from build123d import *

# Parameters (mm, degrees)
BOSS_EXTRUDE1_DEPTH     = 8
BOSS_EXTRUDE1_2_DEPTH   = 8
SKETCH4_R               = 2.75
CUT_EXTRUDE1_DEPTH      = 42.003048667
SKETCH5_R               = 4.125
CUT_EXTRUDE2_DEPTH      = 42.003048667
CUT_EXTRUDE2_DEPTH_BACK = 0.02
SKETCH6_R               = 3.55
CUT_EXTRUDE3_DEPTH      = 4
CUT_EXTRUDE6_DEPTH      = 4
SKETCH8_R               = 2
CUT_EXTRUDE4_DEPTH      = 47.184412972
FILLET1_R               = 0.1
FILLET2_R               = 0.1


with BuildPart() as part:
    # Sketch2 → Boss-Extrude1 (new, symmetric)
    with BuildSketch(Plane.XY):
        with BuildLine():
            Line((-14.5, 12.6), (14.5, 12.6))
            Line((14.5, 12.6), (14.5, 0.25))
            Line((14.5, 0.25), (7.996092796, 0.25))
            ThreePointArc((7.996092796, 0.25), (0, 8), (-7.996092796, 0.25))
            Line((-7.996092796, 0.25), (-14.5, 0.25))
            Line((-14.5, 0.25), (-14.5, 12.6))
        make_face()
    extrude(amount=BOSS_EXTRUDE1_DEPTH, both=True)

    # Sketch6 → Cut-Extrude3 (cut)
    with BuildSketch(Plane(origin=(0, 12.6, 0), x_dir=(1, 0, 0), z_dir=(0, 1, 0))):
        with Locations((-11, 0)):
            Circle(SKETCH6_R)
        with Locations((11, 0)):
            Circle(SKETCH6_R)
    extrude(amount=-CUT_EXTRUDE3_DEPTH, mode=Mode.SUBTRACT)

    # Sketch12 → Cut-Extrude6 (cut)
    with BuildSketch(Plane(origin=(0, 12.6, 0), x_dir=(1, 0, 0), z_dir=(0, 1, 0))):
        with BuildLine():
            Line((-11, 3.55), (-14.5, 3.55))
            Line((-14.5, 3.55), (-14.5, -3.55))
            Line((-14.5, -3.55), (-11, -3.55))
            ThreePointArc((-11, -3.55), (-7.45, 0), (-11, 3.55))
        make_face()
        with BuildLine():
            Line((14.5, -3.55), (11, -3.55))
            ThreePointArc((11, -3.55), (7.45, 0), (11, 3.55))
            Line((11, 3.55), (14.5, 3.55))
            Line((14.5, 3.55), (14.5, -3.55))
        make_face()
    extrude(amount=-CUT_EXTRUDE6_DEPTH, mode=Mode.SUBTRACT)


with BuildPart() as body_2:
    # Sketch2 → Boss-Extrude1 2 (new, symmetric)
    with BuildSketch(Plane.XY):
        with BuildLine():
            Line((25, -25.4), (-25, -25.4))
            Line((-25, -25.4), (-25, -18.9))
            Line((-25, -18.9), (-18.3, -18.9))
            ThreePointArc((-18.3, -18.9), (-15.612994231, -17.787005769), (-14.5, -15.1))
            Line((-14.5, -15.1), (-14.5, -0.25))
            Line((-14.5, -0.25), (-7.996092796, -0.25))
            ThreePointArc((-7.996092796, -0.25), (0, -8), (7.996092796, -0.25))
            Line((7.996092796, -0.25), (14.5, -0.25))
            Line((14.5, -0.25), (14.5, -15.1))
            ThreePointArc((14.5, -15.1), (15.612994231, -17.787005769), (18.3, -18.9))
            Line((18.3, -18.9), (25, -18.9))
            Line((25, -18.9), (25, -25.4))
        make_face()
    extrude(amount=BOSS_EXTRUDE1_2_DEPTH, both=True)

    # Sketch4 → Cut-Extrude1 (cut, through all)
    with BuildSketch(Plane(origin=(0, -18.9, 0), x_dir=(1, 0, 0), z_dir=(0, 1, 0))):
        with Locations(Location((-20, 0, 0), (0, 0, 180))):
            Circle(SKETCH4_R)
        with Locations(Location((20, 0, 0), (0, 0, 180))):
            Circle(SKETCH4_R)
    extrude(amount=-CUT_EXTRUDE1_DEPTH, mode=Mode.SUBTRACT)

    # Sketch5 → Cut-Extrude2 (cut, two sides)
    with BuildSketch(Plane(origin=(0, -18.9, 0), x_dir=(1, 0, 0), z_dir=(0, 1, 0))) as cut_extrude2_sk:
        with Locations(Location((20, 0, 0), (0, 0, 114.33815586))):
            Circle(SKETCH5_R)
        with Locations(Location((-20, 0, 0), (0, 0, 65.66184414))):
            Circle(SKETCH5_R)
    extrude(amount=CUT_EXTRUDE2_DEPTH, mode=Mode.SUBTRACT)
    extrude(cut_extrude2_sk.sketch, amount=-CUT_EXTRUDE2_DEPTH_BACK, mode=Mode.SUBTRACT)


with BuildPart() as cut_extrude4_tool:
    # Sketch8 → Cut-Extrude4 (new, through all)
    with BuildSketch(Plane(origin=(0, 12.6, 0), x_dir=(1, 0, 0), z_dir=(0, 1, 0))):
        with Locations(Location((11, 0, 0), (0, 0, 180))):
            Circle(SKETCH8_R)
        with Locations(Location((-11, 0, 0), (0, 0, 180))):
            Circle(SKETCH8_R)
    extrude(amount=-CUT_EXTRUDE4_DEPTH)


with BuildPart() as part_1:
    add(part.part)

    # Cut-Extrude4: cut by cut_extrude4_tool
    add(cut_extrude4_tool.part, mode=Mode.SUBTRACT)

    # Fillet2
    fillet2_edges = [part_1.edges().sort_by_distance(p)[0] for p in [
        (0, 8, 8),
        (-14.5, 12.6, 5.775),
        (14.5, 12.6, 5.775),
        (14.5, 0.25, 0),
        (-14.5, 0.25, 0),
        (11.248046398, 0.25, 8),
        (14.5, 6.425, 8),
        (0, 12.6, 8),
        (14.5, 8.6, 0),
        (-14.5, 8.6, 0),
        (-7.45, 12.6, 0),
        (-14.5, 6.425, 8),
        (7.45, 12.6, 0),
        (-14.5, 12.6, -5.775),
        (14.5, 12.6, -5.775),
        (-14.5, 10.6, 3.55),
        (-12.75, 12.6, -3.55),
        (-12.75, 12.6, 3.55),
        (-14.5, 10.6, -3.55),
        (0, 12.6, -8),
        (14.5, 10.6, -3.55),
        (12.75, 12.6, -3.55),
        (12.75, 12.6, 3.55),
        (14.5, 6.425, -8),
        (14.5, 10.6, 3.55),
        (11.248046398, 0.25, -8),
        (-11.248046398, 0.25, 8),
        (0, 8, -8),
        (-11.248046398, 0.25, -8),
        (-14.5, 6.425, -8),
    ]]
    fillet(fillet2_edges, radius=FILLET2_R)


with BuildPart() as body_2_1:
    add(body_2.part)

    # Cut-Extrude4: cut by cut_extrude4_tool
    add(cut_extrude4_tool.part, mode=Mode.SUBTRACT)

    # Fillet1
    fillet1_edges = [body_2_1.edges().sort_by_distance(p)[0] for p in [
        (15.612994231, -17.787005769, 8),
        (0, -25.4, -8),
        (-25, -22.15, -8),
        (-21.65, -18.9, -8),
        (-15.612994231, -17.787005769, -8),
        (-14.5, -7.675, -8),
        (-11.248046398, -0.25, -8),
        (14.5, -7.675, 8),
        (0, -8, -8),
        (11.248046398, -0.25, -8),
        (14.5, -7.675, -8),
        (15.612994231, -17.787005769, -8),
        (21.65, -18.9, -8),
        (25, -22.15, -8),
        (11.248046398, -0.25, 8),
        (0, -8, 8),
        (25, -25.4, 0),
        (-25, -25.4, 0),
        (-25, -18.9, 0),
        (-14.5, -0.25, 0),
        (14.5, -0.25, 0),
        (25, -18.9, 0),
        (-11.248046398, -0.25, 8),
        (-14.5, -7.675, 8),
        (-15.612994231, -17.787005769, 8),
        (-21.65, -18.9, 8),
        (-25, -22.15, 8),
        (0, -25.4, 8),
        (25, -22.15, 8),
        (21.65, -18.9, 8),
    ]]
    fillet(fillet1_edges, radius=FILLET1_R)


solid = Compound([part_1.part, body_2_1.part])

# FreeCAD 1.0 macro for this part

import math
import FreeCAD as App
import Part
import Sketcher
Q = App.Units.Quantity


def edges_at(feature, points):
    """Names of the edges that pass closest to the given points."""
    edges = feature.Shape.Edges
    near = lambda p: min(range(len(edges)), key=lambda i: edges[i].distToShape(Part.Vertex(*p))[0])
    return sorted({f"Edge{near(p) + 1}" for p in points})

doc = App.newDocument("Part")
body = doc.addObject("PartDesign::Body", "Body")

sketch1 = body.newObject("Sketcher::SketchObject", "Sketch")
sketch1.AttachmentSupport = (doc.getObject("XY_Plane"), [""])
sketch1.MapMode = "FlatFace"
sketch1.addGeometry(Part.LineSegment(App.Vector(14, 13, 0), App.Vector(-14, 13, 0)), False)
sketch1.addGeometry(Part.LineSegment(App.Vector(-14, 13, 0), App.Vector(-14, 0, 0)), False)
sketch1.addGeometry(Part.LineSegment(App.Vector(-14, 0, 0), App.Vector(-8, 0, 0)), False)
sketch1.addGeometry(Part.ArcOfCircle(Part.Circle(App.Vector(0, 0, 0), App.Vector(0, 0, 1), 8), math.radians(2), math.radians(178)), False)
sketch1.addGeometry(Part.LineSegment(App.Vector(8, 0, 0), App.Vector(14, 0, 0)), False)
sketch1.addGeometry(Part.LineSegment(App.Vector(14, 0, 0), App.Vector(14, 13, 0)), False)
sketch1.addConstraint(Sketcher.Constraint("Coincident", 0, 2, 1, 1))
sketch1.addConstraint(Sketcher.Constraint("Coincident", 1, 2, 2, 1))
sketch1.addConstraint(Sketcher.Constraint("Coincident", 2, 2, 3, 2))
sketch1.addConstraint(Sketcher.Constraint("Coincident", 3, 1, 4, 1))
sketch1.addConstraint(Sketcher.Constraint("Coincident", 4, 2, 5, 1))
sketch1.addConstraint(Sketcher.Constraint("Coincident", 5, 2, 0, 1))
sketch1.addConstraint(Sketcher.Constraint("Horizontal", 0))
sketch1.addConstraint(Sketcher.Constraint("Vertical", 1))
sketch1.addConstraint(Sketcher.Constraint("Horizontal", 2))
sketch1.addConstraint(Sketcher.Constraint("Horizontal", 4))
sketch1.addConstraint(Sketcher.Constraint("Vertical", 5))
sketch1.addConstraint(Sketcher.Constraint("Coincident", 3, 3, -1, 1))
sketch1.addConstraint(Sketcher.Constraint("Symmetric", 1, 2, 4, 2, -2))
sketch1.addConstraint(Sketcher.Constraint("Radius", 3, Q("8 mm")))
sketch1.addConstraint(Sketcher.Constraint("DistanceX", 0, 2, 0, 1, Q("29 mm")))
sketch1.addConstraint(Sketcher.Constraint("DistanceY", 1, 2, 1, 1, Q("12.35 mm")))
sketch1.addConstraint(Sketcher.Constraint("DistanceY", -1, 1, 0, 2, Q("12.6 mm")))
pad1 = body.newObject("PartDesign::Pad", "Pad")
pad1.Profile = sketch1
pad1.Length = 16
pad1.Midplane = True

sketch2 = body.newObject("Sketcher::SketchObject", "Sketch001")
sketch2.AttachmentSupport = (doc.getObject("XZ_Plane"), [""])
sketch2.MapMode = "FlatFace"
sketch2.AttachmentOffset = App.Placement(App.Vector(0, 0, -12.6), App.Rotation())
sketch2.addGeometry(Part.Circle(App.Vector(-11, 0, 0), App.Vector(0, 0, 1), 3.5), False)
sketch2.addGeometry(Part.Circle(App.Vector(11, 0, 0), App.Vector(0, 0, 1), 3.5), False)
sketch2.addConstraint(Sketcher.Constraint("Equal", 0, 1))
sketch2.addConstraint(Sketcher.Constraint("Symmetric", 0, 3, 1, 3, -1, 1))
sketch2.addConstraint(Sketcher.Constraint("PointOnObject", 0, 3, -1))
sketch2.addConstraint(Sketcher.Constraint("Diameter", 0, Q("7.1 mm")))
sketch2.addConstraint(Sketcher.Constraint("DistanceX", 0, 3, -1, 1, Q("11 mm")))
pocket1 = body.newObject("PartDesign::Pocket", "Pocket")
pocket1.Profile = sketch2
pocket1.Length = 4
pocket1.Reversed = True

sketch3 = body.newObject("Sketcher::SketchObject", "Sketch002")
sketch3.AttachmentSupport = (doc.getObject("XZ_Plane"), [""])
sketch3.MapMode = "FlatFace"
sketch3.AttachmentOffset = App.Placement(App.Vector(0, 0, -12.6), App.Rotation())
sketch3.addGeometry(Part.LineSegment(App.Vector(-11, -3.5, 0), App.Vector(-14.5, -3.5, 0)), False)
sketch3.addGeometry(Part.LineSegment(App.Vector(-14.5, -3.5, 0), App.Vector(-14.5, 3.5, 0)), False)
sketch3.addGeometry(Part.LineSegment(App.Vector(-14.5, 3.5, 0), App.Vector(-11, 3.5, 0)), False)
sketch3.addGeometry(Part.ArcOfCircle(Part.Circle(App.Vector(-11, 0, 0), App.Vector(0, 0, 1), 3.5), math.radians(-90), math.radians(90)), False)
sketch3.addGeometry(Part.LineSegment(App.Vector(11, 3.5, 0), App.Vector(14.5, 3.5, 0)), False)
sketch3.addGeometry(Part.LineSegment(App.Vector(14.5, 3.5, 0), App.Vector(14.5, -3.5, 0)), False)
sketch3.addGeometry(Part.LineSegment(App.Vector(14.5, -3.5, 0), App.Vector(11, -3.5, 0)), False)
sketch3.addGeometry(Part.ArcOfCircle(Part.Circle(App.Vector(11, 0, 0), App.Vector(0, 0, 1), 3.5), math.radians(90), math.radians(270)), False)
sketch3.addConstraint(Sketcher.Constraint("Coincident", 0, 2, 1, 1))
sketch3.addConstraint(Sketcher.Constraint("Coincident", 1, 2, 2, 1))
sketch3.addConstraint(Sketcher.Constraint("Tangent", 2, 2, 3, 2))
sketch3.addConstraint(Sketcher.Constraint("Tangent", 3, 1, 0, 1))
sketch3.addConstraint(Sketcher.Constraint("Coincident", 4, 2, 5, 1))
sketch3.addConstraint(Sketcher.Constraint("Coincident", 5, 2, 6, 1))
sketch3.addConstraint(Sketcher.Constraint("Tangent", 6, 2, 7, 2))
sketch3.addConstraint(Sketcher.Constraint("Tangent", 7, 1, 4, 1))
sketch3.addConstraint(Sketcher.Constraint("Horizontal", 0))
sketch3.addConstraint(Sketcher.Constraint("Vertical", 1))
sketch3.addConstraint(Sketcher.Constraint("Horizontal", 2))
sketch3.addConstraint(Sketcher.Constraint("Horizontal", 4))
sketch3.addConstraint(Sketcher.Constraint("Vertical", 5))
sketch3.addConstraint(Sketcher.Constraint("Horizontal", 6))
sketch3.addConstraint(Sketcher.Constraint("Equal", 3, 7))
sketch3.addConstraint(Sketcher.Constraint("Symmetric", 3, 3, 7, 3, -1, 1))
sketch3.addConstraint(Sketcher.Constraint("Symmetric", 1, 2, 4, 2, -2))
sketch3.addConstraint(Sketcher.Constraint("Radius", 3, Q("3.55 mm")))
sketch3.addConstraint(Sketcher.Constraint("DistanceX", 0, 2, 0, 1, Q("3.5 mm")))
sketch3.addConstraint(Sketcher.Constraint("DistanceX", 3, 3, -1, 1, Q("11 mm")))
pocket2 = body.newObject("PartDesign::Pocket", "Pocket001")
pocket2.Profile = sketch3
pocket2.Length = 4
pocket2.Reversed = True
body2 = doc.addObject("PartDesign::Body", "Body001")

sketch4 = body2.newObject("Sketcher::SketchObject", "Sketch003")
sketch4.AttachmentSupport = (doc.getObject("XY_Plane001"), [""])
sketch4.MapMode = "FlatFace"
sketch4.addGeometry(Part.LineSegment(App.Vector(-25, -25.4, 0), App.Vector(25, -25.4, 0)), False)
sketch4.addGeometry(Part.LineSegment(App.Vector(25, -25.4, 0), App.Vector(25, -18.9, 0)), False)
sketch4.addGeometry(Part.LineSegment(App.Vector(25, -18.9, 0), App.Vector(18.3, -18.9, 0)), False)
sketch4.addGeometry(Part.ArcOfCircle(Part.Circle(App.Vector(18.3, -15.1, 0), App.Vector(0, 0, 1), 3.8), math.radians(180), math.radians(270)), False)
sketch4.addGeometry(Part.LineSegment(App.Vector(14.5, -15.1, 0), App.Vector(14.5, -0.2, 0)), False)
sketch4.addGeometry(Part.LineSegment(App.Vector(14.5, -0.2, 0), App.Vector(8, -0.2, 0)), False)
sketch4.addGeometry(Part.ArcOfCircle(Part.Circle(App.Vector(0, 0, 0), App.Vector(0, 0, 1), 8), math.radians(-178), math.radians(-2)), False)
sketch4.addGeometry(Part.LineSegment(App.Vector(-8, -0.2, 0), App.Vector(-14.5, -0.2, 0)), False)
sketch4.addGeometry(Part.LineSegment(App.Vector(-14.5, -0.2, 0), App.Vector(-14.5, -15.1, 0)), False)
sketch4.addGeometry(Part.ArcOfCircle(Part.Circle(App.Vector(-18.3, -15.1, 0), App.Vector(0, 0, 1), 3.8), math.radians(-90), math.radians(0)), False)
sketch4.addGeometry(Part.LineSegment(App.Vector(-18.3, -18.9, 0), App.Vector(-25, -18.9, 0)), False)
sketch4.addGeometry(Part.LineSegment(App.Vector(-25, -18.9, 0), App.Vector(-25, -25.4, 0)), False)
sketch4.addConstraint(Sketcher.Constraint("Coincident", 0, 2, 1, 1))
sketch4.addConstraint(Sketcher.Constraint("Coincident", 1, 2, 2, 1))
sketch4.addConstraint(Sketcher.Constraint("Tangent", 2, 2, 3, 2))
sketch4.addConstraint(Sketcher.Constraint("Tangent", 3, 1, 4, 1))
sketch4.addConstraint(Sketcher.Constraint("Coincident", 4, 2, 5, 1))
sketch4.addConstraint(Sketcher.Constraint("Coincident", 5, 2, 6, 2))
sketch4.addConstraint(Sketcher.Constraint("Coincident", 6, 1, 7, 1))
sketch4.addConstraint(Sketcher.Constraint("Coincident", 7, 2, 8, 1))
sketch4.addConstraint(Sketcher.Constraint("Tangent", 8, 2, 9, 2))
sketch4.addConstraint(Sketcher.Constraint("Tangent", 9, 1, 10, 1))
sketch4.addConstraint(Sketcher.Constraint("Coincident", 10, 2, 11, 1))
sketch4.addConstraint(Sketcher.Constraint("Coincident", 11, 2, 0, 1))
sketch4.addConstraint(Sketcher.Constraint("Horizontal", 0))
sketch4.addConstraint(Sketcher.Constraint("Vertical", 1))
sketch4.addConstraint(Sketcher.Constraint("Horizontal", 2))
sketch4.addConstraint(Sketcher.Constraint("Vertical", 4))
sketch4.addConstraint(Sketcher.Constraint("Horizontal", 5))
sketch4.addConstraint(Sketcher.Constraint("Horizontal", 7))
sketch4.addConstraint(Sketcher.Constraint("Vertical", 8))
sketch4.addConstraint(Sketcher.Constraint("Horizontal", 10))
sketch4.addConstraint(Sketcher.Constraint("Vertical", 11))
sketch4.addConstraint(Sketcher.Constraint("Coincident", 6, 3, -1, 1))
sketch4.addConstraint(Sketcher.Constraint("Equal", 3, 9))
sketch4.addConstraint(Sketcher.Constraint("Symmetric", 3, 3, 9, 3, -2))
sketch4.addConstraint(Sketcher.Constraint("Horizontal", 5, 2, 6, 1))
sketch4.addConstraint(Sketcher.Constraint("Equal", 2, 10))
sketch4.addConstraint(Sketcher.Constraint("Radius", 6, Q("8 mm")))
sketch4.addConstraint(Sketcher.Constraint("Radius", 3, Q("3.8 mm")))
sketch4.addConstraint(Sketcher.Constraint("DistanceX", 0, 1, 0, 2, Q("50 mm")))
sketch4.addConstraint(Sketcher.Constraint("DistanceX", 2, 2, 2, 1, Q("6.7 mm")))
sketch4.addConstraint(Sketcher.Constraint("DistanceY", 1, 1, 1, 2, Q("6.5 mm")))
sketch4.addConstraint(Sketcher.Constraint("DistanceY", 4, 1, 4, 2, Q("14.85 mm")))
sketch4.addConstraint(Sketcher.Constraint("DistanceY", 3, 3, -1, 1, Q("15.1 mm")))
pad2 = body2.newObject("PartDesign::Pad", "Pad001")
pad2.Profile = sketch4
pad2.Length = 16
pad2.Midplane = True

sketch5 = body2.newObject("Sketcher::SketchObject", "Sketch004")
sketch5.AttachmentSupport = (doc.getObject("XZ_Plane001"), [""])
sketch5.MapMode = "FlatFace"
sketch5.AttachmentOffset = App.Placement(App.Vector(0, 0, 18.9), App.Rotation())
sketch5.addGeometry(Part.Circle(App.Vector(-20, 0, 0), App.Vector(0, 0, 1), 2.8), False)
sketch5.addGeometry(Part.Circle(App.Vector(20, 0, 0), App.Vector(0, 0, 1), 2.8), False)
sketch5.addConstraint(Sketcher.Constraint("Equal", 0, 1))
sketch5.addConstraint(Sketcher.Constraint("Symmetric", 0, 3, 1, 3, -1, 1))
sketch5.addConstraint(Sketcher.Constraint("PointOnObject", 0, 3, -1))
sketch5.addConstraint(Sketcher.Constraint("Diameter", 0, Q("5.5 mm")))
sketch5.addConstraint(Sketcher.Constraint("DistanceX", 0, 3, -1, 1, Q("20 mm")))
pocket3 = body2.newObject("PartDesign::Pocket", "Pocket002")
pocket3.Profile = sketch5
pocket3.Type = "ThroughAll"
pocket3.Reversed = True

sketch6 = body2.newObject("Sketcher::SketchObject", "Sketch005")
sketch6.AttachmentSupport = (doc.getObject("XZ_Plane001"), [""])
sketch6.MapMode = "FlatFace"
sketch6.AttachmentOffset = App.Placement(App.Vector(0, 0, 18.9), App.Rotation())
sketch6.addGeometry(Part.Circle(App.Vector(20, 0, 0), App.Vector(0, 0, 1), 4.1), False)
sketch6.addGeometry(Part.Circle(App.Vector(-20, 0, 0), App.Vector(0, 0, 1), 4.1), False)
sketch6.addConstraint(Sketcher.Constraint("Equal", 0, 1))
sketch6.addConstraint(Sketcher.Constraint("Symmetric", 0, 3, 1, 3, -1, 1))
sketch6.addConstraint(Sketcher.Constraint("PointOnObject", 0, 3, -1))
sketch6.addConstraint(Sketcher.Constraint("Diameter", 0, Q("8.25 mm")))
sketch6.addConstraint(Sketcher.Constraint("DistanceX", -1, 1, 0, 3, Q("20 mm")))
pocket4 = body2.newObject("PartDesign::Pocket", "Pocket003")
pocket4.Profile = sketch6
pocket4.Type = "TwoLengths"
pocket4.Length = 42.003049
pocket4.Length2 = 0.02
body3 = doc.addObject("PartDesign::Body", "Body002")
body3.AllowCompound = True

sketch7 = body3.newObject("Sketcher::SketchObject", "Sketch006")
sketch7.AttachmentSupport = (doc.getObject("XZ_Plane002"), [""])
sketch7.MapMode = "FlatFace"
sketch7.AttachmentOffset = App.Placement(App.Vector(0, 0, -12.6), App.Rotation())
sketch7.addGeometry(Part.Circle(App.Vector(11, 0, 0), App.Vector(0, 0, 1), 2), False)
sketch7.addGeometry(Part.Circle(App.Vector(-11, 0, 0), App.Vector(0, 0, 1), 2), False)
sketch7.addConstraint(Sketcher.Constraint("Equal", 0, 1))
sketch7.addConstraint(Sketcher.Constraint("Symmetric", 0, 3, 1, 3, -1, 1))
sketch7.addConstraint(Sketcher.Constraint("PointOnObject", 0, 3, -1))
sketch7.addConstraint(Sketcher.Constraint("Diameter", 0, Q("4 mm")))
sketch7.addConstraint(Sketcher.Constraint("DistanceX", -1, 1, 0, 3, Q("11 mm")))
pad3 = body3.newObject("PartDesign::Pad", "Pad002")
pad3.Profile = sketch7
pad3.Length = 47.184413
doc.recompute()

body4 = doc.addObject("PartDesign::Body", "Body003")
body4.BaseFeature = body3
boolean = body.newObject("PartDesign::Boolean", "Boolean")
boolean.Type = "Cut"
boolean.addObjects([body4])
doc.recompute()

fillet = body.newObject("PartDesign::Fillet", "Fillet")
fillet.Base = (boolean, edges_at(boolean, [
    (0, 8, 8),
    (-14.5, 12.6, 5.775),
    (14.5, 12.6, 5.775),
    (14.5, 0.25, 0),
    (-14.5, 0.25, 0),
    (11.248, 0.25, 8),
    (14.5, 6.425, 8),
    (0, 12.6, 8),
    (14.5, 8.6, 0),
    (-14.5, 8.6, 0),
    (-7.45, 12.6, 0),
    (-14.5, 6.425, 8),
    (7.45, 12.6, 0),
    (-14.5, 12.6, -5.775),
    (14.5, 12.6, -5.775),
    (-14.5, 10.6, 3.55),
    (-12.75, 12.6, -3.55),
    (-12.75, 12.6, 3.55),
    (-14.5, 10.6, -3.55),
    (0, 12.6, -8),
    (14.5, 10.6, -3.55),
    (12.75, 12.6, -3.55),
    (12.75, 12.6, 3.55),
    (14.5, 6.425, -8),
    (14.5, 10.6, 3.55),
    (11.248, 0.25, -8),
    (-11.248, 0.25, 8),
    (0, 8, -8),
    (-11.248, 0.25, -8),
    (-14.5, 6.425, -8),
]))
fillet.Radius = 0.1
doc.recompute()

boolean2 = body2.newObject("PartDesign::Boolean", "Boolean001")
boolean2.Type = "Cut"
boolean2.addObjects([body3])
doc.recompute()

fillet2 = body2.newObject("PartDesign::Fillet", "Fillet001")
fillet2.Base = (boolean2, edges_at(boolean2, [
    (15.613, -17.787, 8),
    (0, -25.4, -8),
    (-25, -22.15, -8),
    (-21.65, -18.9, -8),
    (-15.613, -17.787, -8),
    (-14.5, -7.675, -8),
    (-11.248, -0.25, -8),
    (14.5, -7.675, 8),
    (0, -8, -8),
    (11.248, -0.25, -8),
    (14.5, -7.675, -8),
    (15.613, -17.787, -8),
    (21.65, -18.9, -8),
    (25, -22.15, -8),
    (11.248, -0.25, 8),
    (0, -8, 8),
    (25, -25.4, 0),
    (-25, -25.4, 0),
    (-25, -18.9, 0),
    (-14.5, -0.25, 0),
    (14.5, -0.25, 0),
    (25, -18.9, 0),
    (-11.248, -0.25, 8),
    (-14.5, -7.675, 8),
    (-15.613, -17.787, 8),
    (-21.65, -18.9, 8),
    (-25, -22.15, 8),
    (0, -25.4, 8),
    (25, -22.15, 8),
    (21.65, -18.9, 8),
]))
fillet2.Radius = 0.1

doc.recompute()
